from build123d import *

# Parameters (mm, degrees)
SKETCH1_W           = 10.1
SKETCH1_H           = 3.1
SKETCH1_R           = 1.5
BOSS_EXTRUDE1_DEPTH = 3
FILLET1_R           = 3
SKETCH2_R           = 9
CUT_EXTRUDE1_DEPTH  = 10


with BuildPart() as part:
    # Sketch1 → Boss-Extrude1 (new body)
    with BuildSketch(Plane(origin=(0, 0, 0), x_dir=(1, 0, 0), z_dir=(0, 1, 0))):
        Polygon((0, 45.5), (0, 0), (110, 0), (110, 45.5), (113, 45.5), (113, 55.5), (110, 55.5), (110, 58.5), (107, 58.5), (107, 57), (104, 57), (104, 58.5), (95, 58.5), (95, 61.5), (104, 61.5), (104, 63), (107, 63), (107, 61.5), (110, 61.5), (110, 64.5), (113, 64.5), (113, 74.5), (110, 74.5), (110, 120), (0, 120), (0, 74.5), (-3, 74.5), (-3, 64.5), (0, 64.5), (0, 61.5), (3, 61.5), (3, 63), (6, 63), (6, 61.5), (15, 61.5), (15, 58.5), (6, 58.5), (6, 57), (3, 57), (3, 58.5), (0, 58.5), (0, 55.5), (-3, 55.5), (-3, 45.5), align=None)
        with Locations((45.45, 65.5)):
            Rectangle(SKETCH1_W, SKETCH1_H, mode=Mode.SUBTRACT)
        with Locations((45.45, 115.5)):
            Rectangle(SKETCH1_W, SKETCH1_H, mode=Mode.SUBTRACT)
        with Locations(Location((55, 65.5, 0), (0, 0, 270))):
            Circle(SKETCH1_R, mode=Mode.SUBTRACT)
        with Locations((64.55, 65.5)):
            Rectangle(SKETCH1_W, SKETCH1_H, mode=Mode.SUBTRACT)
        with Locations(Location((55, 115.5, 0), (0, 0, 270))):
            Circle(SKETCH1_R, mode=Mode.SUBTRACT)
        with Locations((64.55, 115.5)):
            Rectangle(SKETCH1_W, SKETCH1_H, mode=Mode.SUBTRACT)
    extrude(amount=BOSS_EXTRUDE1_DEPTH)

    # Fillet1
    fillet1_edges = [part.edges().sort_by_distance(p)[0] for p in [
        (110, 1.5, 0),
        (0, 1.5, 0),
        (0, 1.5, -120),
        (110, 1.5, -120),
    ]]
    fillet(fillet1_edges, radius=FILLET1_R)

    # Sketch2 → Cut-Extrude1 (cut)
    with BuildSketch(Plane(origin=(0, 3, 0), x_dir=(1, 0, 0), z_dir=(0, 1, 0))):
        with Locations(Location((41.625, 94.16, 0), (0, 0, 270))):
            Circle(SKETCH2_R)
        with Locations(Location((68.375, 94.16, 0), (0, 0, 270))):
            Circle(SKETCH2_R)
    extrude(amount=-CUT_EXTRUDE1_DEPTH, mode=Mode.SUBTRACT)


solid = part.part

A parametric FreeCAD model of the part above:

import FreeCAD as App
import Part
import Sketcher

V = App.Vector
Q = App.Units.Quantity


def edges_at(feature, points):
    """Names of the edges that pass closest to the given points."""
    edges = feature.Shape.Edges
    near = lambda p: min(range(len(edges)), key=lambda i: edges[i].distToShape(Part.Vertex(*p))[0])
    return sorted({f"Edge{near(p) + 1}" for p in points})


def add_polygon(sketch, points):
    """Adds a closed chain of lines whose ends are joined by coincident constraints."""
    first, n = sketch.GeometryCount, len(points)
    for a, b in zip(points, points[1:] + points[:1]):
        sketch.addGeometry(Part.LineSegment(App.Vector(*a, 0), App.Vector(*b, 0)), False)
    for i in range(n):
        sketch.addConstraint(Sketcher.Constraint("Coincident", first + i, 2, first + (i + 1) % n, 1))

doc = App.newDocument("Part")
params = doc.addObject("Spreadsheet::Sheet", "Params")
for row, (alias, value) in enumerate([
    ("sketch1_diameter", "3 mm"),
    ("sketch1_width", "110 mm"),
    ("sketch1_width2", "3 mm"),
    ("sketch1_width3", "9 mm"),
    ("sketch1_height", "10 mm"),
    ("pad1_length", "3 mm"),
    ("fillet_radius", "3 mm"),
    ("sketch2_diameter", "18 mm"),
    ("pocket1_length", "10 mm"),
], start=1):
    params.set(f"A{row}", alias)
    params.set(f"B{row}", "=" + value)
    params.setAlias(f"B{row}", alias)

body = doc.addObject("PartDesign::Body", "Body")

sketch1 = body.newObject("Sketcher::SketchObject", "Sketch")
sketch1.AttachmentSupport = (doc.getObject("XZ_Plane"), [""])
sketch1.MapMode = "FlatFace"
add_polygon(sketch1, [(0, -45.5), (0, 0), (110, 0), (110, -45.5), (113, -45.5), (113, -55.5), (110, -55.5), (110, -58.5), (107, -58.5), (107, -57), (104, -57), (104, -58.5), (95, -58.5), (95, -61.5), (104, -61.5), (104, -63), (107, -63), (107, -61.5), (110, -61.5), (110, -64.5), (113, -64.5), (113, -74.5), (110, -74.5), (110, -120), (0, -120), (0, -74.5), (-3, -74.5), (-3, -64.5), (0, -64.5), (0, -61.5), (3, -61.5), (3, -63), (6, -63), (6, -61.5), (15, -61.5), (15, -58.5), (6, -58.5), (6, -57), (3, -57), (3, -58.5), (0, -58.5), (0, -55.5), (-3, -55.5), (-3, -45.5)])
add_polygon(sketch1, [(50.5, -64), (40.4, -64), (40.4, -67), (50.5, -67)])
sketch1.addGeometry(Part.Circle(V(55, -65.5, 0), V(0, 0, 1), 1.5), False)
add_polygon(sketch1, [(69.6, -64), (59.5, -64), (59.5, -67), (69.6, -67)])
add_polygon(sketch1, [(50.5, -114), (40.4, -114), (40.4, -117), (50.5, -117)])
sketch1.addGeometry(Part.Circle(V(55, -115.5, 0), V(0, 0, 1), 1.5), False)
add_polygon(sketch1, [(69.6, -114), (59.5, -114), (59.5, -117), (69.6, -117)])
sketch1.addConstraint([
    Sketcher.Constraint("Vertical", 0),
    Sketcher.Constraint("Horizontal", 1),
    Sketcher.Constraint("Vertical", 2),
    Sketcher.Constraint("Horizontal", 3),
    Sketcher.Constraint("Vertical", 4),
    Sketcher.Constraint("Horizontal", 5),
    Sketcher.Constraint("Vertical", 6),
    Sketcher.Constraint("Horizontal", 7),
    Sketcher.Constraint("Vertical", 8),
    Sketcher.Constraint("Horizontal", 9),
    Sketcher.Constraint("Vertical", 10),
    Sketcher.Constraint("Horizontal", 11),
    Sketcher.Constraint("Vertical", 12),
    Sketcher.Constraint("Horizontal", 13),
    Sketcher.Constraint("Vertical", 14),
    Sketcher.Constraint("Horizontal", 15),
    Sketcher.Constraint("Vertical", 16),
    Sketcher.Constraint("Horizontal", 17),
    Sketcher.Constraint("Vertical", 18),
    Sketcher.Constraint("Horizontal", 19),
    Sketcher.Constraint("Vertical", 20),
    Sketcher.Constraint("Horizontal", 21),
    Sketcher.Constraint("Vertical", 22),
    Sketcher.Constraint("Horizontal", 23),
    Sketcher.Constraint("Vertical", 24),
    Sketcher.Constraint("Horizontal", 25),
    Sketcher.Constraint("Vertical", 26),
    Sketcher.Constraint("Horizontal", 27),
    Sketcher.Constraint("Vertical", 28),
    Sketcher.Constraint("Horizontal", 29),
    Sketcher.Constraint("Vertical", 30),
    Sketcher.Constraint("Horizontal", 31),
    Sketcher.Constraint("Vertical", 32),
    Sketcher.Constraint("Horizontal", 33),
    Sketcher.Constraint("Vertical", 34),
    Sketcher.Constraint("Horizontal", 35),
    Sketcher.Constraint("Vertical", 36),
    Sketcher.Constraint("Horizontal", 37),
    Sketcher.Constraint("Vertical", 38),
    Sketcher.Constraint("Horizontal", 39),
    Sketcher.Constraint("Vertical", 40),
    Sketcher.Constraint("Horizontal", 41),
    Sketcher.Constraint("Vertical", 42),
    Sketcher.Constraint("Horizontal", 43),
    Sketcher.Constraint("Horizontal", 44),
    Sketcher.Constraint("Vertical", 45),
    Sketcher.Constraint("Horizontal", 46),
    Sketcher.Constraint("Vertical", 47),
    Sketcher.Constraint("Horizontal", 49),
    Sketcher.Constraint("Vertical", 50),
    Sketcher.Constraint("Horizontal", 51),
    Sketcher.Constraint("Vertical", 52),
    Sketcher.Constraint("Horizontal", 53),
    Sketcher.Constraint("Vertical", 54),
    Sketcher.Constraint("Horizontal", 55),
    Sketcher.Constraint("Vertical", 56),
    Sketcher.Constraint("Horizontal", 58),
    Sketcher.Constraint("Vertical", 59),
    Sketcher.Constraint("Horizontal", 60),
    Sketcher.Constraint("Vertical", 61),
    Sketcher.Constraint("Coincident", 0, 2, -1, 1),
    Sketcher.Constraint("Equal", 48, 57),
    Sketcher.Constraint("PointOnObject", 23, 2, -2),
    Sketcher.Constraint("PointOnObject", 27, 2, -2),
    Sketcher.Constraint("PointOnObject", 39, 2, -2),
    Sketcher.Constraint("Horizontal", 7, 2, 10, 2),
    Sketcher.Constraint("Horizontal", 13, 2, 16, 2),
    Sketcher.Constraint("Horizontal", 21, 2, 24, 2),
    Sketcher.Constraint("Horizontal", 19, 2, 26, 2),
    Sketcher.Constraint("Horizontal", 17, 2, 28, 2),
    Sketcher.Constraint("Horizontal", 15, 2, 30, 2),
    Sketcher.Constraint("Horizontal", 29, 2, 32, 2),
    Sketcher.Constraint("Horizontal", 11, 2, 34, 2),
    Sketcher.Constraint("Horizontal", 9, 2, 36, 2),
    Sketcher.Constraint("Horizontal", 35, 2, 38, 2),
    Sketcher.Constraint("Horizontal", 5, 2, 40, 2),
    Sketcher.Constraint("Horizontal", 3, 2, 42, 2),
    Sketcher.Constraint("Horizontal", 47, 2, 49, 2),
    Sketcher.Constraint("Horizontal", 46, 2, 50, 2),
    Sketcher.Constraint("Horizontal", 56, 2, 58, 2),
    Sketcher.Constraint("Horizontal", 55, 2, 59, 2),
    Sketcher.Constraint("Vertical", 48, 3, 57, 3),
    Sketcher.Constraint("Vertical", 2, 2, 5, 2),
    Sketcher.Constraint("Vertical", 10, 2, 13, 2),
    Sketcher.Constraint("Vertical", 8, 2, 15, 2),
    Sketcher.Constraint("Vertical", 6, 2, 17, 2),
    Sketcher.Constraint("Vertical", 4, 2, 19, 2),
    Sketcher.Constraint("Vertical", 18, 2, 21, 2),
    Sketcher.Constraint("Vertical", 32, 2, 35, 2),
    Sketcher.Constraint("Vertical", 30, 2, 37, 2),
    Sketcher.Constraint("Vertical", 26, 2, 41, 2),
    Sketcher.Constraint("Vertical", 45, 2, 53, 2),
    Sketcher.Constraint("Vertical", 47, 2, 55, 2),
    Sketcher.Constraint("Vertical", 50, 2, 58, 2),
    Sketcher.Constraint("Vertical", 52, 2, 60, 2),
    Sketcher.Constraint("Equal", 5, 7),
    Sketcher.Constraint("Equal", 7, 9),
    Sketcher.Constraint("Equal", 21, 25),
    Sketcher.Constraint("Equal", 27, 29),
    Sketcher.Constraint("Equal", 29, 31),
    Sketcher.Constraint("Equal", 13, 33),
    Sketcher.Constraint("Equal", 46, 49),
    Sketcher.Constraint("Equal", 43, 6),
    Sketcher.Constraint("Equal", 6, 12),
    Sketcher.Constraint("Equal", 10, 14),
    Sketcher.Constraint("Equal", 12, 18),
    Sketcher.Constraint("Equal", 4, 20),
    Sketcher.Constraint("Equal", 2, 22),
    Sketcher.Constraint("Equal", 52, 54),
    Sketcher.Constraint("Diameter", 48, Q("3 mm")),
    Sketcher.Constraint("DistanceX", 1, 1, 1, 2, Q("110 mm")),
    Sketcher.Constraint("DistanceX", 3, 1, 3, 2, Q("3 mm")),
    Sketcher.Constraint("DistanceX", 11, 2, 11, 1, Q("9 mm")),
    Sketcher.Constraint("DistanceY", 4, 2, 4, 1, Q("10 mm")),
    Sketcher.Constraint("DistanceX", 44, 2, 44, 1, Q("10.1 mm")),
    Sketcher.Constraint("DistanceY", 0, 1, 0, 2, Q("45.5 mm")),
    Sketcher.Constraint("DistanceY", 8, 1, 8, 2, Q("1.5 mm")),
    Sketcher.Constraint("DistanceY", 45, 2, 45, 1, Q("3.1 mm")),
    Sketcher.Constraint("DistanceX", -1, 1, 48, 3, Q("55 mm")),
    Sketcher.Constraint("DistanceY", 48, 3, -1, 1, Q("65.5 mm")),
    Sketcher.Constraint("DistanceY", 57, 3, -1, 1, Q("115.5 mm")),
    Sketcher.Constraint("DistanceX", -1, 1, 44, 2, Q("40.4 mm")),
    Sketcher.Constraint("DistanceX", -1, 1, 49, 2, Q("59.5 mm")),
    Sketcher.Constraint("DistanceY", 44, 2, -1, 1, Q("63.95 mm")),
    Sketcher.Constraint("DistanceY", 53, 2, -1, 1, Q("113.95 mm")),
])
sketch1.setExpression("Constraints[169]", "Params.sketch1_diameter")
sketch1.setExpression("Constraints[170]", "Params.sketch1_width")
sketch1.setExpression("Constraints[171]", "Params.sketch1_width2")
sketch1.setExpression("Constraints[172]", "Params.sketch1_width3")
sketch1.setExpression("Constraints[173]", "Params.sketch1_height")
pad1 = body.newObject("PartDesign::Pad", "Pad")
pad1.Profile = sketch1
pad1.setExpression("Length", "Params.pad1_length")
pad1.Reversed = True
doc.recompute()

fillet = body.newObject("PartDesign::Fillet", "Fillet")
fillet.Base = (pad1, edges_at(pad1, [
    (110, 1.5, 0),
    (0, 1.5, 0),
    (0, 1.5, -120),
    (110, 1.5, -120),
]))
fillet.setExpression("Radius", "Params.fillet_radius")

sketch2 = body.newObject("Sketcher::SketchObject", "Sketch001")
sketch2.AttachmentSupport = (doc.getObject("XZ_Plane"), [""])
sketch2.MapMode = "FlatFace"
sketch2.AttachmentOffset = App.Placement(V(0, 0, -3), App.Rotation())
sketch2.addGeometry([
    Part.Circle(V(42, -94, 0), V(0, 0, 1), 9),
    Part.Circle(V(68, -94, 0), V(0, 0, 1), 9),
], False)
sketch2.addConstraint([
    Sketcher.Constraint("Equal", 0, 1),
    Sketcher.Constraint("Horizontal", 0, 3, 1, 3),
    Sketcher.Constraint("Diameter", 0, Q("18 mm")),
    Sketcher.Constraint("DistanceY", 0, 3, -1, 1, Q("94.16 mm")),
    Sketcher.Constraint("DistanceX", 0, 3, 1, 3, Q("26.75 mm")),
    Sketcher.Constraint("DistanceX", -1, 1, 0, 3, Q("41.625 mm")),
])
sketch2.setExpression("Constraints[2]", "Params.sketch2_diameter")
pocket1 = body.newObject("PartDesign::Pocket", "Pocket")
pocket1.Profile = sketch2
pocket1.setExpression("Length", "Params.pocket1_length")
pocket1.Reversed = True

doc.recompute()
